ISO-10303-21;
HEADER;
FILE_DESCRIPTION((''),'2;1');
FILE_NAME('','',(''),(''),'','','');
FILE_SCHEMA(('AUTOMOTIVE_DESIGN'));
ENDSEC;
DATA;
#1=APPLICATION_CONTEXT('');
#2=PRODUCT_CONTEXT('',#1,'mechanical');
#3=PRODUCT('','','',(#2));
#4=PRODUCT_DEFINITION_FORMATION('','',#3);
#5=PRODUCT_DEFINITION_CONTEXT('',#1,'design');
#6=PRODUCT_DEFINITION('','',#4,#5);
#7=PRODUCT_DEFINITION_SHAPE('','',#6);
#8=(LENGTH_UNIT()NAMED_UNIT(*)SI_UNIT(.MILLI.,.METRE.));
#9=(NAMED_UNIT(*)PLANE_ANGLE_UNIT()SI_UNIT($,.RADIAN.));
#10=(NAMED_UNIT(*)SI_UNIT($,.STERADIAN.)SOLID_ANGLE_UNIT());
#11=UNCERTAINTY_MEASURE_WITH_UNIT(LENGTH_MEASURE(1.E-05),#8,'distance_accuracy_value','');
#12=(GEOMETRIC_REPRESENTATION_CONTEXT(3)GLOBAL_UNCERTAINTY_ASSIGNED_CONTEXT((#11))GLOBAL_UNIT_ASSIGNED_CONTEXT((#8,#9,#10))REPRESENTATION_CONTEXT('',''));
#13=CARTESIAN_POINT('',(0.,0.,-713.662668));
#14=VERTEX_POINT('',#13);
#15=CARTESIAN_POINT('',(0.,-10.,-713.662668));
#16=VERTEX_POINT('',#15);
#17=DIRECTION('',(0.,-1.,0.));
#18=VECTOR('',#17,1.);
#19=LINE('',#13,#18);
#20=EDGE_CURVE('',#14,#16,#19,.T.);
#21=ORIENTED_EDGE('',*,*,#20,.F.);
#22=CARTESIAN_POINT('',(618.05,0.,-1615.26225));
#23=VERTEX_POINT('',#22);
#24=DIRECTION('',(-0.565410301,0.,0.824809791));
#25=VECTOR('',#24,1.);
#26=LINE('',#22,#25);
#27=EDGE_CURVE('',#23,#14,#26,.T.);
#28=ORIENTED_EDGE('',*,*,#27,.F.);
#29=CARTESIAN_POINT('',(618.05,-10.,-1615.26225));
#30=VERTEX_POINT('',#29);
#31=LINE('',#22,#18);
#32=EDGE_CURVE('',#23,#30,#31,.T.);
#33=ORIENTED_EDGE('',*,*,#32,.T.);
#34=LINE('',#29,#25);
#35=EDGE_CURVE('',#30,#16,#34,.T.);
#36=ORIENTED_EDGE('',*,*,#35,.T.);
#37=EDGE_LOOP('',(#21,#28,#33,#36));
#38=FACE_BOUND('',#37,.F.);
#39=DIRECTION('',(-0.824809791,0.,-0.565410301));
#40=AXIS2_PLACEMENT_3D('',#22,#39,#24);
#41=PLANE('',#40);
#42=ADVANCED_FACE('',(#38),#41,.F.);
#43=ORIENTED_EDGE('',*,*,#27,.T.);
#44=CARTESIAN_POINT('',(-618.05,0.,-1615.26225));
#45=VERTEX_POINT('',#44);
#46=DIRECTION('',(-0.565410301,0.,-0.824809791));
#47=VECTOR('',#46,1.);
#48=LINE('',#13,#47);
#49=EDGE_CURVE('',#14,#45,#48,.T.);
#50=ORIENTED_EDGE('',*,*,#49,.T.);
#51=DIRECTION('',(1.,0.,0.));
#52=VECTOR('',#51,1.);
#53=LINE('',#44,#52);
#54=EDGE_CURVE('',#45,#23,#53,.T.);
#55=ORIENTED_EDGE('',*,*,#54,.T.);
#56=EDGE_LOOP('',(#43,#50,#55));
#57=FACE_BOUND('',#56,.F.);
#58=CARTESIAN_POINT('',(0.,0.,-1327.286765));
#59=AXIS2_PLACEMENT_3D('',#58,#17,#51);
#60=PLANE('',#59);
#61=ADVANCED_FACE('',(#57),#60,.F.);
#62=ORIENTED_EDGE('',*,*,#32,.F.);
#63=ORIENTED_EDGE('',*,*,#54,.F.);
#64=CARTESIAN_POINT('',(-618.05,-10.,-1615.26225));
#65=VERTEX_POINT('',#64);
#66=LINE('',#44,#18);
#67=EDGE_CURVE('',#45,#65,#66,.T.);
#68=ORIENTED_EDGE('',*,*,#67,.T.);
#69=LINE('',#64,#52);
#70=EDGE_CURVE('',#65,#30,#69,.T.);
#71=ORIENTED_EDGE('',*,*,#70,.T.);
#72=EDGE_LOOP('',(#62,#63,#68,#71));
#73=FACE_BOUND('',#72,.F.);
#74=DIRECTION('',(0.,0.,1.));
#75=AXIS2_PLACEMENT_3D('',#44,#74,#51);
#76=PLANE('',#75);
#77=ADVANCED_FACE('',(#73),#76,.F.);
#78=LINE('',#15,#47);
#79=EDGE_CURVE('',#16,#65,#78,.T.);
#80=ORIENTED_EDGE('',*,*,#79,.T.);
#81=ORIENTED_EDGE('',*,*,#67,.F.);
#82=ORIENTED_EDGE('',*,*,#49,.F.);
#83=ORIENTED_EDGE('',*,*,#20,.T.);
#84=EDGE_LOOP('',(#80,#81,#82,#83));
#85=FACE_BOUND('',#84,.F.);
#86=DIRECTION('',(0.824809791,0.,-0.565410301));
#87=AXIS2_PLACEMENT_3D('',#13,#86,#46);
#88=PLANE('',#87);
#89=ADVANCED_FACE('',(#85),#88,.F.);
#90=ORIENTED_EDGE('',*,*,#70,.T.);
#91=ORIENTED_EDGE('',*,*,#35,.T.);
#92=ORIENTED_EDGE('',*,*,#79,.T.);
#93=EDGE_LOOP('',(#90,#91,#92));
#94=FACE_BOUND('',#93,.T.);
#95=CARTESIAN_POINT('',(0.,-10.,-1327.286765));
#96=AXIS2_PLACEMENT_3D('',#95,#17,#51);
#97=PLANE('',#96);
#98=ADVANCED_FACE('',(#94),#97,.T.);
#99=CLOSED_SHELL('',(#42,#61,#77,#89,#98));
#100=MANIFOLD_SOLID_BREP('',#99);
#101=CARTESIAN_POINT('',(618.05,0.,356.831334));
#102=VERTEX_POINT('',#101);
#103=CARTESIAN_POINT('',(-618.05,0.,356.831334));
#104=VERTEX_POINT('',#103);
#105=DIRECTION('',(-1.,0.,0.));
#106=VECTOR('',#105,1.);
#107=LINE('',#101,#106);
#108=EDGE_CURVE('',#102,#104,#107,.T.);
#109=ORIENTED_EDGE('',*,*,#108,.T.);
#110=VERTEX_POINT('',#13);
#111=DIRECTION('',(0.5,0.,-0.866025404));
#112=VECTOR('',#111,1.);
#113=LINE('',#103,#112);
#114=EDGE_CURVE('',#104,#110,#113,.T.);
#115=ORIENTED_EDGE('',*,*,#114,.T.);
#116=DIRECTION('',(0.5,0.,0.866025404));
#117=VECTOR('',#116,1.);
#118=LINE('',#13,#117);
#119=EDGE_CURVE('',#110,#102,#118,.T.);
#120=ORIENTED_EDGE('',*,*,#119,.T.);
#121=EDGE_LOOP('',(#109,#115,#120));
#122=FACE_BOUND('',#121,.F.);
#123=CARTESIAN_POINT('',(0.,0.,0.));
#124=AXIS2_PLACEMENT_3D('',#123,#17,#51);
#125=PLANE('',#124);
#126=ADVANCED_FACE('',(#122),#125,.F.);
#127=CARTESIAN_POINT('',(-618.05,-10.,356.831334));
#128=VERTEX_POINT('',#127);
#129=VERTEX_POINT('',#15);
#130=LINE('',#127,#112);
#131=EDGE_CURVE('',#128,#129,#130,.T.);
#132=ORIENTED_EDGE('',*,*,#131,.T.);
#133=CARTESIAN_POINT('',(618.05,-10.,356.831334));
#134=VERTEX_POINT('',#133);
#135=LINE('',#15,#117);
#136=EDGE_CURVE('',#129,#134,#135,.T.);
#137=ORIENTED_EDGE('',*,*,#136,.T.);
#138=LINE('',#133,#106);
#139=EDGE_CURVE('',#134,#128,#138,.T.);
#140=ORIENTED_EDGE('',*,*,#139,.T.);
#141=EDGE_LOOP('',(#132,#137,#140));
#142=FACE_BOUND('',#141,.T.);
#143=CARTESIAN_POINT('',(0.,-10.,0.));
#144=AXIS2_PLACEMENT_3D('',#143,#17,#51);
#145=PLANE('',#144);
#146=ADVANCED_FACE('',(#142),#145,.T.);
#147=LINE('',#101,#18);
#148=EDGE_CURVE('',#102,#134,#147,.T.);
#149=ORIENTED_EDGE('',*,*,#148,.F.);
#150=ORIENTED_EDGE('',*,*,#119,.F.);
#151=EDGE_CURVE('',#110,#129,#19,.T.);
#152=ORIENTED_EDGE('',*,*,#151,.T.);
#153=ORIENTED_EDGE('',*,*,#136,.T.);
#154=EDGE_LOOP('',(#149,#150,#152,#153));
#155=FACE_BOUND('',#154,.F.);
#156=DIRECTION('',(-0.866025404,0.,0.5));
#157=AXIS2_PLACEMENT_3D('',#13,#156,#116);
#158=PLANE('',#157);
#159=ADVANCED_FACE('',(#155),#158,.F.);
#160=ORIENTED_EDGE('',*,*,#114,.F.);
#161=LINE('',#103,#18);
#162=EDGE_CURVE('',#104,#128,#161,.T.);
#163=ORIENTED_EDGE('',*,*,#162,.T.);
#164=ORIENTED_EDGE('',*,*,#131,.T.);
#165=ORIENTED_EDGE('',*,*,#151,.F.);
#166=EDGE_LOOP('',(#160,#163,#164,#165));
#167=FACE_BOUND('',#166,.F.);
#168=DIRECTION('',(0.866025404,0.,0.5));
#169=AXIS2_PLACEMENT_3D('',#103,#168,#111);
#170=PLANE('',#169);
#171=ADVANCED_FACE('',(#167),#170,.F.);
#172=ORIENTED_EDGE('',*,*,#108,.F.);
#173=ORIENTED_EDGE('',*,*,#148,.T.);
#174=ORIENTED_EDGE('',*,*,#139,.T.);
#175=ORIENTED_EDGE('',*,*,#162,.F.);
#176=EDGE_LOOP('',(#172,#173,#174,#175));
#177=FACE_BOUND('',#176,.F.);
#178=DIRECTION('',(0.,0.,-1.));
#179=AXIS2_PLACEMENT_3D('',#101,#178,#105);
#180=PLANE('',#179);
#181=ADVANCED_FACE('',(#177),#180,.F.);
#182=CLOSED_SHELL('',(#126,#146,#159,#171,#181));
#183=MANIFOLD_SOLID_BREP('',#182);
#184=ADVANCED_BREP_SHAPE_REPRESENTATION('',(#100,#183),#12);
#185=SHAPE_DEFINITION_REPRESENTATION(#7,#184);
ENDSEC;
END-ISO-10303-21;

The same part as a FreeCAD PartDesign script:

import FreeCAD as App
import Part
import Sketcher
Q = App.Units.Quantity


def add_polygon(sketch, points):
    """Adds a closed chain of lines whose ends are joined by coincident constraints."""
    first, n = sketch.GeometryCount, len(points)
    for a, b in zip(points, points[1:] + points[:1]):
        sketch.addGeometry(Part.LineSegment(App.Vector(*a, 0), App.Vector(*b, 0)), False)
    for i in range(n):
        sketch.addConstraint(Sketcher.Constraint("Coincident", first + i, 2, first + (i + 1) % n, 1))

doc = App.newDocument("Part")
params = doc.addObject("Spreadsheet::Sheet", "Params")
for row, (alias, value) in enumerate([
    ("sketch1_width", "1236.1 mm"),
    ("pad1_length", "10 mm"),
    ("sketch2_width", "1236.1 mm"),
    ("sketch2_length", "1093.1 mm"),
    ("pad2_length", "10 mm"),
], start=1):
    params.set(f"A{row}", alias)
    params.set(f"B{row}", "=" + value)
    params.setAlias(f"B{row}", alias)

body = doc.addObject("PartDesign::Body", "Body")

# Sketch on XZ plane
sketch1 = body.newObject("Sketcher::SketchObject", "Sketch")
sketch1.AttachmentSupport = (doc.getObject("XZ_Plane"), [""])
sketch1.MapMode = "FlatFace"
add_polygon(sketch1, [(0, -713.662668), (618.05, 356.831334), (-618.05, 356.831334)])  # lines 0-2
sketch1.addConstraint([
    Sketcher.Constraint("Horizontal", 1),
    Sketcher.Constraint("PointOnObject", 2, 2, -2),
    Sketcher.Constraint("Equal", 0, 2),
    Sketcher.Constraint("Angle", 0, Q("60 deg")),
    Sketcher.Constraint("DistanceX", 1, 2, 1, 1, 1236.1),
    Sketcher.Constraint("DistanceY", -1, 1, 0, 2, 356.831334),
])
sketch1.setExpression("Constraints[7]", "Params.sketch1_width")
pad1 = body.newObject("PartDesign::Pad", "Pad")
pad1.Profile = sketch1
pad1.setExpression("Length", "Params.pad1_length")
body2 = doc.addObject("PartDesign::Body", "Body001")

# Sketch on XZ plane
sketch2 = body2.newObject("Sketcher::SketchObject", "Sketch001")
sketch2.AttachmentSupport = (doc.getObject("XZ_Plane001"), [""])
sketch2.MapMode = "FlatFace"
add_polygon(sketch2, [(0, -713.662668), (-618.05, -1615.26225), (618.05, -1615.26225)])  # lines 0-2
sketch2.addConstraint([
    Sketcher.Constraint("Horizontal", 1),
    Sketcher.Constraint("PointOnObject", 2, 2, -2),
    Sketcher.Constraint("Equal", 0, 2),
    Sketcher.Constraint("DistanceX", 1, 1, 1, 2, 1236.1),
    Sketcher.Constraint("Distance", 0, 1093.1),
    Sketcher.Constraint("DistanceY", 0, 2, -1, 1, 1615.26225),
])
sketch2.setExpression("Constraints[6]", "Params.sketch2_width")
sketch2.setExpression("Constraints[7]", "Params.sketch2_length")
pad2 = body2.newObject("PartDesign::Pad", "Pad001")
pad2.Profile = sketch2
pad2.setExpression("Length", "Params.pad2_length")

doc.recompute()
